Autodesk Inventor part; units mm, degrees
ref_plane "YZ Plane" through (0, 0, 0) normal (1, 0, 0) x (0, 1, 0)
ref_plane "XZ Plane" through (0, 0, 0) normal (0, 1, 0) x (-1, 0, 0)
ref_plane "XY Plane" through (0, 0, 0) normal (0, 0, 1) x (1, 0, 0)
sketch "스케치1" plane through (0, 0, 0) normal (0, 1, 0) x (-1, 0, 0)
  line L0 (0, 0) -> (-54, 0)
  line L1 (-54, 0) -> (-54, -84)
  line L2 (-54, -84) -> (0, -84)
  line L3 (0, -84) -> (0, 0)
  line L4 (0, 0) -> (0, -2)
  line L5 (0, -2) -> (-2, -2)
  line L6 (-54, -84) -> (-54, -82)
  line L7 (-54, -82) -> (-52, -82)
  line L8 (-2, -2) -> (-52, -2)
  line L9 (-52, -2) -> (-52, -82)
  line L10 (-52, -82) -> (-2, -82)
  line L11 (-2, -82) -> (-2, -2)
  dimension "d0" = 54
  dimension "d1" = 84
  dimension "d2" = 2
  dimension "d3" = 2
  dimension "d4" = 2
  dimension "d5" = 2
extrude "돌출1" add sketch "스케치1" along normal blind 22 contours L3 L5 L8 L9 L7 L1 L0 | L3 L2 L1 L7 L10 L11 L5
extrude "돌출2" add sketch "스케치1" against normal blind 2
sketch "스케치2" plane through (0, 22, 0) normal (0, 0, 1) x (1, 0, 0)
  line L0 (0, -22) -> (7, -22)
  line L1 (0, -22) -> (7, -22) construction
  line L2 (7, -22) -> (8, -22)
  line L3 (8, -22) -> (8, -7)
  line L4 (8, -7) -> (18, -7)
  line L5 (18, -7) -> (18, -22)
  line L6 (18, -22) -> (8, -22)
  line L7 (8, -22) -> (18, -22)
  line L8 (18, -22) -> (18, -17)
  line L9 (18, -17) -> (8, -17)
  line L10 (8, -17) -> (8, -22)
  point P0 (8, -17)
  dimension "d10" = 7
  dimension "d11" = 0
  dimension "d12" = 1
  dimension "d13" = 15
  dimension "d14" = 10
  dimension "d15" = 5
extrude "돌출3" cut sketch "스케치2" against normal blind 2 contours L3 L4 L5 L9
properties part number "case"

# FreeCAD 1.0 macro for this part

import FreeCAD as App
import Part
import Sketcher

V = App.Vector
Q = App.Units.Quantity


def add_polygon(sketch, points):
    """Adds a closed chain of lines whose ends are joined by coincident constraints."""
    first, n = sketch.GeometryCount, len(points)
    for a, b in zip(points, points[1:] + points[:1]):
        sketch.addGeometry(Part.LineSegment(App.Vector(*a, 0), App.Vector(*b, 0)), False)
    for i in range(n):
        sketch.addConstraint(Sketcher.Constraint("Coincident", first + i, 2, first + (i + 1) % n, 1))

doc = App.newDocument("Part")
body = doc.addObject("PartDesign::Body", "Body")

# Sketch on XZ plane
sketch1 = doc.addObject("Sketcher::SketchObject", "Sketch")
body.addObject(sketch1)
sketch1.AttachmentSupport = (doc.XZ_Plane, [""])
sketch1.MapMode = "FlatFace"
add_polygon(sketch1, [(0, 0), (54, 0), (54, -84), (0, -84)])  # lines 0-3
add_polygon(sketch1, [(52, -2), (2, -2), (2, -82), (52, -82)])  # lines 4-7
sketch1.addConstraint([
    Sketcher.Constraint("Horizontal", 0),
    Sketcher.Constraint("Vertical", 1),
    Sketcher.Constraint("Horizontal", 2),
    Sketcher.Constraint("Vertical", 3),
    Sketcher.Constraint("Horizontal", 4),
    Sketcher.Constraint("Vertical", 5),
    Sketcher.Constraint("Horizontal", 6),
    Sketcher.Constraint("Vertical", 7),
    Sketcher.Constraint("Coincident", 3, 2, -1, 1),
    Sketcher.Constraint("DistanceX", 0, 1, 0, 2, Q("54 mm")),
    Sketcher.Constraint("DistanceY", 1, 2, 1, 1, Q("84 mm")),
    Sketcher.Constraint("DistanceX", -1, 1, 4, 2, Q("2 mm")),
    Sketcher.Constraint("DistanceY", 4, 2, -1, 1, Q("2 mm")),
    Sketcher.Constraint("DistanceY", 2, 2, 5, 2, Q("2 mm")),
    Sketcher.Constraint("DistanceX", 6, 2, 1, 2, Q("2 mm")),
])
pad1 = doc.addObject("PartDesign::Pad", "Pad")
body.addObject(pad1)
pad1.Profile = sketch1
pad1.Length = 22
pad1.Reversed = True

# Sketch on XZ plane
sketch2 = doc.addObject("Sketcher::SketchObject", "Sketch001")
body.addObject(sketch2)
sketch2.AttachmentSupport = (doc.XZ_Plane, [""])
sketch2.MapMode = "FlatFace"
add_polygon(sketch2, [(0, 0), (54, 0), (54, -84), (0, -84)])  # lines 0-3
sketch2.addConstraint([
    Sketcher.Constraint("Horizontal", 0),
    Sketcher.Constraint("Vertical", 1),
    Sketcher.Constraint("Horizontal", 2),
    Sketcher.Constraint("Vertical", 3),
    Sketcher.Constraint("Coincident", 3, 2, -1, 1),
    Sketcher.Constraint("DistanceX", 0, 1, 0, 2, Q("54 mm")),
    Sketcher.Constraint("DistanceY", 1, 2, 1, 1, Q("84 mm")),
])
pad2 = doc.addObject("PartDesign::Pad", "Pad001")
body.addObject(pad2)
pad2.Profile = sketch2
pad2.Length = 2

# Sketch on XY plane
sketch3 = doc.addObject("Sketcher::SketchObject", "Sketch002")
body.addObject(sketch3)
sketch3.AttachmentSupport = (doc.XY_Plane, [""])
sketch3.MapMode = "FlatFace"
add_polygon(sketch3, [(8, 15), (8, 5), (18, 5), (18, 15)])  # lines 0-3
sketch3.addConstraint([
    Sketcher.Constraint("Vertical", 0),
    Sketcher.Constraint("Horizontal", 1),
    Sketcher.Constraint("Vertical", 2),
    Sketcher.Constraint("Horizontal", 3),
    Sketcher.Constraint("Equal", 3, 0),
    Sketcher.Constraint("DistanceX", 1, 1, 1, 2, Q("10 mm")),
    Sketcher.Constraint("DistanceY", -1, 1, 0, 2, Q("5 mm")),
    Sketcher.Constraint("DistanceX", -1, 1, 0, 2, Q("8 mm")),
])
pocket1 = doc.addObject("PartDesign::Pocket", "Pocket")
body.addObject(pocket1)
pocket1.Profile = sketch3
pocket1.Length = 2

doc.recompute()
